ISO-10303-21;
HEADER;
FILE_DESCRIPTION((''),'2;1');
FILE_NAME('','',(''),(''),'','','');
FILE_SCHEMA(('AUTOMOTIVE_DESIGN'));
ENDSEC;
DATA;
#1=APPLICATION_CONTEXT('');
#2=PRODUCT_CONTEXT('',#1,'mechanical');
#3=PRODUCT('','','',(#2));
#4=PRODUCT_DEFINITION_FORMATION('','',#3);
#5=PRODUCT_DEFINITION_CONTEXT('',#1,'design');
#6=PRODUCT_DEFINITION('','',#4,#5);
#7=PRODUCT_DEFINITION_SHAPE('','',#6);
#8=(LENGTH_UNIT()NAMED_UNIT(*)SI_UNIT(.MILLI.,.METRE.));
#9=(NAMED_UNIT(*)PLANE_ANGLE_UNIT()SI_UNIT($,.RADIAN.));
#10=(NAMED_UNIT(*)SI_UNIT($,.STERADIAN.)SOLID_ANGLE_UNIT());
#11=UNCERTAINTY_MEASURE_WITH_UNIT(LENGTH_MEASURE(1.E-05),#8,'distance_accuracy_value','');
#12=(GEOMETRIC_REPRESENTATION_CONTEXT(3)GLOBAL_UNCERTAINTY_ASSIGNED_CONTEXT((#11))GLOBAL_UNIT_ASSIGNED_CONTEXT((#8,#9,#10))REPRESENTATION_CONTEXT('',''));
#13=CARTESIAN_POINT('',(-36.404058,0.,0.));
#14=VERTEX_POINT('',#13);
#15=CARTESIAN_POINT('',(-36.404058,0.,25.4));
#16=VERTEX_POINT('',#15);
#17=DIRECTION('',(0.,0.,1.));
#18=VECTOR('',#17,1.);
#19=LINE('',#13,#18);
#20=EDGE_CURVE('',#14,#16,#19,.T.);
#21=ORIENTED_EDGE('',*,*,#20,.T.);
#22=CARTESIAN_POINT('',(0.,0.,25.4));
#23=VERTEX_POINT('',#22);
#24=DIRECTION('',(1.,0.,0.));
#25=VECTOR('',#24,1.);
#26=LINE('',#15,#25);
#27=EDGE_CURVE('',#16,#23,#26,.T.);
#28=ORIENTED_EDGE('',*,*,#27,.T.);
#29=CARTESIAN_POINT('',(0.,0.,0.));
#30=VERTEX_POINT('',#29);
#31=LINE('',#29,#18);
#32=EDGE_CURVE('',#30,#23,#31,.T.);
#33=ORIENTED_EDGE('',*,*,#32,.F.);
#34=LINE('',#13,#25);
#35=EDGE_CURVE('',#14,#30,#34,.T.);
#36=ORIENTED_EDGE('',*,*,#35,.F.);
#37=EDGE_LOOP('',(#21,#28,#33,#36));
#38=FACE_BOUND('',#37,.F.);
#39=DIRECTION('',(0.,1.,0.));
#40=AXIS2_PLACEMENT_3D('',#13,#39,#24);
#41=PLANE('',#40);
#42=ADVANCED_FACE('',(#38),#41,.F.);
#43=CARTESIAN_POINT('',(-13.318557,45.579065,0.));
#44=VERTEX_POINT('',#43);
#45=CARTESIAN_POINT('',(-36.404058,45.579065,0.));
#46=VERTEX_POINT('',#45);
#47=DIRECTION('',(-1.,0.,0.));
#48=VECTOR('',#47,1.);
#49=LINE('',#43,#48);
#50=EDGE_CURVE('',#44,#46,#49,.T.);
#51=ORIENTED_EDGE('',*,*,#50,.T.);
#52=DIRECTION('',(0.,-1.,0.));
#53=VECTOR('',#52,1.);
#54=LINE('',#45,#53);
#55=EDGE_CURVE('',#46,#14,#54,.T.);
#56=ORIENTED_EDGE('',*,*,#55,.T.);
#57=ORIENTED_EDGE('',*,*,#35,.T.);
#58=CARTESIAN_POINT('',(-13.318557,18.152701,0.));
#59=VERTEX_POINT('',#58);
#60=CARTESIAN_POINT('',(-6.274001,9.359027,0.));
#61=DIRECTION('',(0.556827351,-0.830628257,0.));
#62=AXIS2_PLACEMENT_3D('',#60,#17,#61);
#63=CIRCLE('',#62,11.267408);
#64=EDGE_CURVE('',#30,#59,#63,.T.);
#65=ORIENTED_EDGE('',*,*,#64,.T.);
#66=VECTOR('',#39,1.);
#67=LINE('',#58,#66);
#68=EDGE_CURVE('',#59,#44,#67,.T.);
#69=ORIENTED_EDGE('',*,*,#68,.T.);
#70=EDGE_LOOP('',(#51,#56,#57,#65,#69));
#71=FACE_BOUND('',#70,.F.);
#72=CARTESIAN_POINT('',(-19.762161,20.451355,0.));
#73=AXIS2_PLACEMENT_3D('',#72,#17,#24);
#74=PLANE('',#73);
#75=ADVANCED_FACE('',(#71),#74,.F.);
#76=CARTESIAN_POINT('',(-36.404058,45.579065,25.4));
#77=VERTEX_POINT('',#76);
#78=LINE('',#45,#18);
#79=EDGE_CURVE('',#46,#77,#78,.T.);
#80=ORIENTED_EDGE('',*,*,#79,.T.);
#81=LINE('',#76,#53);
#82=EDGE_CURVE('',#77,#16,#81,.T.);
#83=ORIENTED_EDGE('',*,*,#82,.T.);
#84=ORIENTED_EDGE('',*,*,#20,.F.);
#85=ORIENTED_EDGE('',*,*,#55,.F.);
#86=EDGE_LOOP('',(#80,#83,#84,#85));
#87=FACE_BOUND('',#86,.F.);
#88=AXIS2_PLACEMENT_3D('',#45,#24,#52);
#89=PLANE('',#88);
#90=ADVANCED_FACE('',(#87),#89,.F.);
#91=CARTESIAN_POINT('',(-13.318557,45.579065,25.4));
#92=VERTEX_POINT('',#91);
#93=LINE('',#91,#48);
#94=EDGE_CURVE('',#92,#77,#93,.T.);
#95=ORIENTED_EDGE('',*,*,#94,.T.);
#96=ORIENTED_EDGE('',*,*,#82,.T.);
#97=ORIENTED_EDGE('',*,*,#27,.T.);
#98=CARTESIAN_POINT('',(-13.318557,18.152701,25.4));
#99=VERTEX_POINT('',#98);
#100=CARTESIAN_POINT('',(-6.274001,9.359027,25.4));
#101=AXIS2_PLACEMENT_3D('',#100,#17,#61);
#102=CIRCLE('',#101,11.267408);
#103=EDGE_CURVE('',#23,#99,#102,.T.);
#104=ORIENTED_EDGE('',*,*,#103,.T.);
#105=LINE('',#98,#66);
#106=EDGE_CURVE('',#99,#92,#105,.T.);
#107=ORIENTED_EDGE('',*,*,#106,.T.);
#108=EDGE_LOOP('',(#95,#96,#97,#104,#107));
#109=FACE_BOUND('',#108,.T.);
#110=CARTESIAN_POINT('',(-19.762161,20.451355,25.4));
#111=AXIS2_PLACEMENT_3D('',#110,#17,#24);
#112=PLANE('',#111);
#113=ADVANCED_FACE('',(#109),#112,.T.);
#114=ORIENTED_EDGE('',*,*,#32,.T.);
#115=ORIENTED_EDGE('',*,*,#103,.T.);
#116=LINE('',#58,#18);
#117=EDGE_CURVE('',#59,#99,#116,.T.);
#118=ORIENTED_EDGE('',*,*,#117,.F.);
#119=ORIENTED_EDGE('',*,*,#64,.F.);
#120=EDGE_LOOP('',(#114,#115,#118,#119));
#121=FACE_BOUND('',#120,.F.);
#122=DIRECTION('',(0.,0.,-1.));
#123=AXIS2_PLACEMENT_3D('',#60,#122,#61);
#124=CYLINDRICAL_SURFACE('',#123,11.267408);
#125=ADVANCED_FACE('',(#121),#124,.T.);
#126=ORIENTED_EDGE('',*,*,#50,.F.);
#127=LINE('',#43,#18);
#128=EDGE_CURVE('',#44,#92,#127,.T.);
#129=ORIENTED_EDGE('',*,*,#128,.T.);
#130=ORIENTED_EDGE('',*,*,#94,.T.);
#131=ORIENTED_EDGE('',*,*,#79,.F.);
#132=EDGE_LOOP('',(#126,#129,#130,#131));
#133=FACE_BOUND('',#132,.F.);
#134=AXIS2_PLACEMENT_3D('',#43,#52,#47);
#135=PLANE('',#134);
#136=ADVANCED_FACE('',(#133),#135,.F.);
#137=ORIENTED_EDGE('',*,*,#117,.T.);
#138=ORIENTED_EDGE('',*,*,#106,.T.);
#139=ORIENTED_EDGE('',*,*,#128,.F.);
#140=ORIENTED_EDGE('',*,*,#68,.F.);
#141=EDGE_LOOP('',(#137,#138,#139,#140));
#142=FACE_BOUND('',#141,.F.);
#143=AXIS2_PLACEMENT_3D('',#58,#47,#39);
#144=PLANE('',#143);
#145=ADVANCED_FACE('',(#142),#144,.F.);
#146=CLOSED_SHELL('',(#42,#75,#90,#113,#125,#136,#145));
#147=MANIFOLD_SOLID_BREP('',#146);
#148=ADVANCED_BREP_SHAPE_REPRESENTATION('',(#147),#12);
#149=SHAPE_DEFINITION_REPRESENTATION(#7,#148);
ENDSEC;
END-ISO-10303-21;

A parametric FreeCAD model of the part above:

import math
import FreeCAD as App
import Part
import Sketcher
from FreeCAD import Vector
Q = App.Units.Quantity

doc = App.newDocument("Part")
body = doc.addObject("PartDesign::Body", "Body")

# Sketch on XY plane
sketch1 = body.newObject("Sketcher::SketchObject", "Sketch")
sketch1.AttachmentSupport = (doc.getObject("XY_Plane"), [""])
sketch1.MapMode = "FlatFace"
sketch1.addGeometry(Part.LineSegment(Vector(-36, 0, 0), Vector(0, 0, 0)), False)
sketch1.addGeometry(Part.ArcOfCircle(Part.Circle(Vector(-6, 9, 0), Vector(0, 0, 1), 11), math.radians(-56), math.radians(129)), False)
sketch1.addGeometry(Part.LineSegment(Vector(-13, 18, 0), Vector(-13, 46, 0)), False)
sketch1.addGeometry(Part.LineSegment(Vector(-13, 46, 0), Vector(-36, 46, 0)), False)
sketch1.addGeometry(Part.LineSegment(Vector(-36, 46, 0), Vector(-36, 0, 0)), False)
sketch1.addConstraint(Sketcher.Constraint("Coincident", 0, 2, 1, 1))
sketch1.addConstraint(Sketcher.Constraint("Coincident", 1, 2, 2, 1))
sketch1.addConstraint(Sketcher.Constraint("Coincident", 2, 2, 3, 1))
sketch1.addConstraint(Sketcher.Constraint("Coincident", 3, 2, 4, 1))
sketch1.addConstraint(Sketcher.Constraint("Coincident", 4, 2, 0, 1))
sketch1.addConstraint(Sketcher.Constraint("Horizontal", 0))
sketch1.addConstraint(Sketcher.Constraint("Vertical", 2))
sketch1.addConstraint(Sketcher.Constraint("Horizontal", 3))
sketch1.addConstraint(Sketcher.Constraint("Vertical", 4))
sketch1.addConstraint(Sketcher.Constraint("Coincident", 0, 2, -1, 1))
sketch1.addConstraint(Sketcher.Constraint("DistanceX", 3, 2, 3, 1, 23.085501))
sketch1.addConstraint(Sketcher.Constraint("Radius", 1, 11.267408))
sketch1.addConstraint(Sketcher.Constraint("DistanceX", 1, 3, -1, 1, 6.274001))
sketch1.addConstraint(Sketcher.Constraint("DistanceY", -1, 1, 1, 2, 18.152701))
sketch1.addConstraint(Sketcher.Constraint("DistanceY", 2, 1, 2, 2, 27.426364))
pad1 = body.newObject("PartDesign::Pad", "Pad")
pad1.Profile = sketch1
pad1.Length = Q("1 in")

doc.recompute()
